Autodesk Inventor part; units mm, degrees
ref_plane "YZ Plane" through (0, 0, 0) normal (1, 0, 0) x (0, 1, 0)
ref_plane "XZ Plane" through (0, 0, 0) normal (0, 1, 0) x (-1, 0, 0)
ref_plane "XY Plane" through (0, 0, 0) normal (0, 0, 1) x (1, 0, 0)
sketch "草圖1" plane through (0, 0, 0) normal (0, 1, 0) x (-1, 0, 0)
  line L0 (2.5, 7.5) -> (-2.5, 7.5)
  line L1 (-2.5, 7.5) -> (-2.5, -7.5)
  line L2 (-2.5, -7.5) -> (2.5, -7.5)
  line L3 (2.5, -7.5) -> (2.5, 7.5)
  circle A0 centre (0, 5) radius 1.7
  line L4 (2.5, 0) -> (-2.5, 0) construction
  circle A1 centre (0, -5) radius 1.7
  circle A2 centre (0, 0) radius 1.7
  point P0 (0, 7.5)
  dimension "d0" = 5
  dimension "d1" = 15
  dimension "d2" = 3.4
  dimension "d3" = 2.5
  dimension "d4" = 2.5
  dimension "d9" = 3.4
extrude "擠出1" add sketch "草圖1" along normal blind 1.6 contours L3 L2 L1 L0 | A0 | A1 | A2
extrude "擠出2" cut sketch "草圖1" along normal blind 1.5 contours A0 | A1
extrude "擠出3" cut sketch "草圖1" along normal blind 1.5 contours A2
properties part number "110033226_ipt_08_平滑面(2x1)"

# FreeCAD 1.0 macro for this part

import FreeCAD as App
import Part
import Sketcher
from FreeCAD import Vector


def add_polygon(sketch, points):
    """Adds a closed chain of lines whose ends are joined by coincident constraints."""
    first, n = sketch.GeometryCount, len(points)
    for a, b in zip(points, points[1:] + points[:1]):
        sketch.addGeometry(Part.LineSegment(App.Vector(*a, 0), App.Vector(*b, 0)), False)
    for i in range(n):
        sketch.addConstraint(Sketcher.Constraint("Coincident", first + i, 2, first + (i + 1) % n, 1))

doc = App.newDocument("Part")
body = doc.addObject("PartDesign::Body", "Body")

# Sketch on XZ plane
sketch1 = body.newObject("Sketcher::SketchObject", "Sketch")
sketch1.AttachmentSupport = (doc.getObject("XZ_Plane"), [""])
sketch1.MapMode = "FlatFace"
add_polygon(sketch1, [(-2, -8), (-2, 8), (2, 8), (2, -8)])  # lines 0-3
sketch1.addConstraint([
    Sketcher.Constraint("Vertical", 0),
    Sketcher.Constraint("Horizontal", 1),
    Sketcher.Constraint("Vertical", 2),
    Sketcher.Constraint("Horizontal", 3),
    Sketcher.Constraint("Symmetric", 0, 2, 2, 2, -1, 1),
    Sketcher.Constraint("DistanceX", 1, 1, 1, 2, 5.0),
    Sketcher.Constraint("DistanceY", 0, 1, 0, 2, 15.0),
])
pad1 = body.newObject("PartDesign::Pad", "Pad")
pad1.Profile = sketch1
pad1.Length = 1.6
pad1.Reversed = True

# Sketch on XZ plane
sketch2 = body.newObject("Sketcher::SketchObject", "Sketch001")
sketch2.AttachmentSupport = (doc.getObject("XZ_Plane"), [""])
sketch2.MapMode = "FlatFace"
sketch2.addGeometry([
    Part.Circle(Vector(0, 5, 0), Vector(0, 0, 1), 1.7),
    Part.Circle(Vector(0, -5, 0), Vector(0, 0, 1), 1.7),
], False)
sketch2.addConstraint([
    Sketcher.Constraint("Equal", 0, 1),
    Sketcher.Constraint("Symmetric", 0, 3, 1, 3, -1, 1),
    Sketcher.Constraint("PointOnObject", 0, 3, -2),
    Sketcher.Constraint("Diameter", 0, 3.4),
    Sketcher.Constraint("DistanceY", -1, 1, 0, 3, 5.0),
])
pocket1 = body.newObject("PartDesign::Pocket", "Pocket")
pocket1.Profile = sketch2
pocket1.Length = 1.5

# Sketch on XZ plane
sketch3 = body.newObject("Sketcher::SketchObject", "Sketch002")
sketch3.AttachmentSupport = (doc.getObject("XZ_Plane"), [""])
sketch3.MapMode = "FlatFace"
sketch3.addGeometry(Part.Circle(Vector(0, 0, 0), Vector(0, 0, 1), 1.7), False)
sketch3.addConstraint([
    Sketcher.Constraint("Coincident", 0, 3, -1, 1),
    Sketcher.Constraint("Diameter", 0, 3.4),
])
pocket2 = body.newObject("PartDesign::Pocket", "Pocket001")
pocket2.Profile = sketch3
pocket2.Length = 1.5

doc.recompute()
